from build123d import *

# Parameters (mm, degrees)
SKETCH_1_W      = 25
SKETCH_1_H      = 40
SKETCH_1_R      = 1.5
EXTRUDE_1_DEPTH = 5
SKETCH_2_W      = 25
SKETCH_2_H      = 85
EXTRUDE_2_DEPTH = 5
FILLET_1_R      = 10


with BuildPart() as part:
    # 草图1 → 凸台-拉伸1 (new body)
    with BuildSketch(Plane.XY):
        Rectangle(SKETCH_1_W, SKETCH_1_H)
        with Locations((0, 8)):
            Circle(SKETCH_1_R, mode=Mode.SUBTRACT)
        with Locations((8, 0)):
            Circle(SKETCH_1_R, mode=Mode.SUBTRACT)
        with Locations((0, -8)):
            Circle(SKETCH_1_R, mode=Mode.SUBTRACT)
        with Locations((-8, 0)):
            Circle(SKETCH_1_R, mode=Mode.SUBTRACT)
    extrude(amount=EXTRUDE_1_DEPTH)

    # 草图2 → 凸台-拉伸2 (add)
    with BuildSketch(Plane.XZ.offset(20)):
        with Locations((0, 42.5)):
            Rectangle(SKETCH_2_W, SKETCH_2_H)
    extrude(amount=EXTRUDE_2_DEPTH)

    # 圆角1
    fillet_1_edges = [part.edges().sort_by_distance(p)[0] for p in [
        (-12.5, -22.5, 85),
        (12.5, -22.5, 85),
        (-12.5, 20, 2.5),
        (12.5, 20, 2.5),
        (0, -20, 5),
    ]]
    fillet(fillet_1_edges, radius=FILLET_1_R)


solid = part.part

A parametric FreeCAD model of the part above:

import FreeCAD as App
import Part
import Sketcher
Q = App.Units.Quantity


def edges_at(feature, points):
    """Names of the edges that pass closest to the given points."""
    edges = feature.Shape.Edges
    near = lambda p: min(range(len(edges)), key=lambda i: edges[i].distToShape(Part.Vertex(*p))[0])
    return sorted({f"Edge{near(p) + 1}" for p in points})


def add_polygon(sketch, points):
    """Adds a closed chain of lines whose ends are joined by coincident constraints."""
    first, n = sketch.GeometryCount, len(points)
    for a, b in zip(points, points[1:] + points[:1]):
        sketch.addGeometry(Part.LineSegment(App.Vector(*a, 0), App.Vector(*b, 0)), False)
    for i in range(n):
        sketch.addConstraint(Sketcher.Constraint("Coincident", first + i, 2, first + (i + 1) % n, 1))

doc = App.newDocument("Part")
body = doc.addObject("PartDesign::Body", "Body")

sketch1 = body.newObject("Sketcher::SketchObject", "Sketch")
sketch1.AttachmentSupport = (doc.getObject("XY_Plane"), [""])
sketch1.MapMode = "FlatFace"
add_polygon(sketch1, [(-12.5, 20), (-12.5, -20), (12.5, -20), (12.5, 20)])
sketch1.addGeometry(Part.Circle(App.Vector(0, -8, 0), App.Vector(0, 0, 1), 1.5), False)
sketch1.addGeometry(Part.Circle(App.Vector(-8, 0, 0), App.Vector(0, 0, 1), 1.5), False)
sketch1.addGeometry(Part.Circle(App.Vector(8, 0, 0), App.Vector(0, 0, 1), 1.5), False)
sketch1.addGeometry(Part.Circle(App.Vector(0, 8, 0), App.Vector(0, 0, 1), 1.5), False)
sketch1.addConstraint([
    Sketcher.Constraint("Vertical", 0),
    Sketcher.Constraint("Horizontal", 1),
    Sketcher.Constraint("Vertical", 2),
    Sketcher.Constraint("Horizontal", 3),
    Sketcher.Constraint("Equal", 4, 5),
    Sketcher.Constraint("Equal", 5, 6),
    Sketcher.Constraint("Equal", 6, 7),
    Sketcher.Constraint("Symmetric", 5, 3, 6, 3, -1, 1),
    Sketcher.Constraint("Symmetric", 4, 3, 7, 3, -1, 1),
    Sketcher.Constraint("Symmetric", 0, 2, 2, 2, -1, 1),
    Sketcher.Constraint("PointOnObject", 4, 3, -2),
    Sketcher.Constraint("PointOnObject", 5, 3, -1),
    Sketcher.Constraint("Diameter", 4, Q("3 mm")),
    Sketcher.Constraint("DistanceX", 1, 1, 1, 2, Q("25 mm")),
    Sketcher.Constraint("DistanceY", 0, 2, 0, 1, Q("40 mm")),
    Sketcher.Constraint("DistanceY", 4, 3, -1, 1, Q("8 mm")),
    Sketcher.Constraint("DistanceX", 5, 3, -1, 1, Q("8 mm")),
])
pad1 = body.newObject("PartDesign::Pad", "Pad")
pad1.Profile = sketch1
pad1.Length = 5

sketch2 = body.newObject("Sketcher::SketchObject", "Sketch001")
sketch2.AttachmentSupport = (doc.getObject("XZ_Plane"), [""])
sketch2.MapMode = "FlatFace"
sketch2.AttachmentOffset = App.Placement(App.Vector(0, 0, 20), App.Rotation())
add_polygon(sketch2, [(-12.5, 85), (-12.5, 0), (12.5, 0), (12.5, 85)])
sketch2.addConstraint([
    Sketcher.Constraint("Vertical", 0),
    Sketcher.Constraint("Horizontal", 1),
    Sketcher.Constraint("Vertical", 2),
    Sketcher.Constraint("Horizontal", 3),
    Sketcher.Constraint("Symmetric", 0, 2, 1, 2, -1, 1),
    Sketcher.Constraint("DistanceX", 1, 1, 1, 2, Q("25 mm")),
    Sketcher.Constraint("DistanceY", 0, 2, 0, 1, Q("85 mm")),
])
pad2 = body.newObject("PartDesign::Pad", "Pad001")
pad2.Profile = sketch2
pad2.Length = 5
doc.recompute()

fillet = body.newObject("PartDesign::Fillet", "Fillet")
fillet.Base = (pad2, edges_at(pad2, [
    (-12.5, -22.5, 85),
    (12.5, -22.5, 85),
    (-12.5, 20, 2.5),
    (12.5, 20, 2.5),
    (0, -20, 5),
]))
fillet.Radius = 10

doc.recompute()
